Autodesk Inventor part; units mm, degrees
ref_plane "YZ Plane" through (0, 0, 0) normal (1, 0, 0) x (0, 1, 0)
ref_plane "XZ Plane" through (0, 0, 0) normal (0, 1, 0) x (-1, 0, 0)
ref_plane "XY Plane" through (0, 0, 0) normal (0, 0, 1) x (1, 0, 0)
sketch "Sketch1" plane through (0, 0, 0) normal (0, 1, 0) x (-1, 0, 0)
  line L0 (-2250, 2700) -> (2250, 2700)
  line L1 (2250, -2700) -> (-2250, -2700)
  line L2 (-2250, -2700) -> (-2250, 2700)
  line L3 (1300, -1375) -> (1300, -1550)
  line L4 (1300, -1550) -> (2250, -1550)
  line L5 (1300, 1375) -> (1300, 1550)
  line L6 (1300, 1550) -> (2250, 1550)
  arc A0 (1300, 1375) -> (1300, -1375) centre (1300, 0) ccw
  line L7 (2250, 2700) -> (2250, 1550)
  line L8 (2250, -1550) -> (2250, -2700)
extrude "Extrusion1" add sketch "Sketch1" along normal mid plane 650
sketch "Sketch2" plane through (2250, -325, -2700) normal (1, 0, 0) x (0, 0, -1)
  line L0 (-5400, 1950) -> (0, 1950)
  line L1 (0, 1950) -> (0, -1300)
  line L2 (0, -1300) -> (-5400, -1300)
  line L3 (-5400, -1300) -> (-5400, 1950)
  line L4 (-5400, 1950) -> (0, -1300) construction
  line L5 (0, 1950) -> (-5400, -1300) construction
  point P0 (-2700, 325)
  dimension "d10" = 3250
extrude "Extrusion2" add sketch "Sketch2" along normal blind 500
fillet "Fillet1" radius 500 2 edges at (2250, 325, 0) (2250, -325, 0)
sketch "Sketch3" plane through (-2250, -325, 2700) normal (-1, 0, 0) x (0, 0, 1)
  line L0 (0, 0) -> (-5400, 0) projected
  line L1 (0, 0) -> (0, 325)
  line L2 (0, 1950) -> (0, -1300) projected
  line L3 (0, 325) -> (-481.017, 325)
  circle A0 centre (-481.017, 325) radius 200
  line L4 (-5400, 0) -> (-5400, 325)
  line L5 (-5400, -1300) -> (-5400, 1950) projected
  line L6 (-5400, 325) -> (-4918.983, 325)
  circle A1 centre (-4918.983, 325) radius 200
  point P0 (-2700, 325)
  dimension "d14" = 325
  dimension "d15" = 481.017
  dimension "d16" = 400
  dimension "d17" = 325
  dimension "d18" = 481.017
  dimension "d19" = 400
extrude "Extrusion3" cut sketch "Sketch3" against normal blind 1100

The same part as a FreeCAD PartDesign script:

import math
import FreeCAD as App
import Part
import Sketcher
from FreeCAD import Vector
Q = App.Units.Quantity


def edges_at(feature, points):
    """Names of the edges that pass closest to the given points."""
    edges = feature.Shape.Edges
    near = lambda p: min(range(len(edges)), key=lambda i: edges[i].distToShape(Part.Vertex(*p))[0])
    return sorted({f"Edge{near(p) + 1}" for p in points})

doc = App.newDocument("Part")
body = doc.addObject("PartDesign::Body", "Body")

# Sketch on XZ plane
sketch1 = body.newObject("Sketcher::SketchObject", "Sketch")
sketch1.AttachmentSupport = (doc.getObject("XZ_Plane"), [""])
sketch1.MapMode = "FlatFace"
sketch1.addGeometry([
    Part.LineSegment(Vector(-2250, 2700, 0), Vector(2250, 2700, 0)),  # 0
    Part.LineSegment(Vector(2250, 2700, 0), Vector(2250, -2700, 0)),  # 1
    Part.LineSegment(Vector(2250, -2700, 0), Vector(-2250, -2700, 0)),  # 2
    Part.LineSegment(Vector(-2250, -2700, 0), Vector(-2250, -1550, 0)),  # 3
    Part.LineSegment(Vector(-2250, -1550, 0), Vector(-1300, -1550, 0)),  # 4
    Part.LineSegment(Vector(-1300, -1550, 0), Vector(-1300, -1375, 0)),  # 5
    Part.ArcOfCircle(Part.Circle(Vector(-1300, 0, 0), Vector(0, 0, 1), 1375), math.radians(-90), math.radians(90)),  # 6
    Part.LineSegment(Vector(-1300, 1375, 0), Vector(-1300, 1550, 0)),  # 7
    Part.LineSegment(Vector(-1300, 1550, 0), Vector(-2250, 1550, 0)),  # 8
    Part.LineSegment(Vector(-2250, 1550, 0), Vector(-2250, 2700, 0)),  # 9
], False)
sketch1.addConstraint([
    Sketcher.Constraint("Coincident", 0, 2, 1, 1),
    Sketcher.Constraint("Coincident", 1, 2, 2, 1),
    Sketcher.Constraint("Coincident", 2, 2, 3, 1),
    Sketcher.Constraint("Coincident", 3, 2, 4, 1),
    Sketcher.Constraint("Coincident", 4, 2, 5, 1),
    Sketcher.Constraint("Coincident", 5, 2, 6, 1),
    Sketcher.Constraint("Coincident", 6, 2, 7, 1),
    Sketcher.Constraint("Coincident", 7, 2, 8, 1),
    Sketcher.Constraint("Coincident", 8, 2, 9, 1),
    Sketcher.Constraint("Coincident", 9, 2, 0, 1),
    Sketcher.Constraint("Horizontal", 0),
    Sketcher.Constraint("Vertical", 1),
    Sketcher.Constraint("Horizontal", 2),
    Sketcher.Constraint("Vertical", 3),
    Sketcher.Constraint("Horizontal", 4),
    Sketcher.Constraint("Vertical", 5),
    Sketcher.Constraint("Vertical", 7),
    Sketcher.Constraint("Horizontal", 8),
    Sketcher.Constraint("Vertical", 9),
    Sketcher.Constraint("Symmetric", 0, 2, 2, 2, -1, 1),
    Sketcher.Constraint("Symmetric", 4, 2, 7, 2, -1),
    Sketcher.Constraint("PointOnObject", 6, 3, -1),
    Sketcher.Constraint("Vertical", 6, 3, 4, 2),
    Sketcher.Constraint("Vertical", 3, 2, 8, 2),
    Sketcher.Constraint("Radius", 6, Q("1375 mm")),
    Sketcher.Constraint("DistanceX", 0, 1, 0, 2, Q("4500 mm")),
    Sketcher.Constraint("DistanceX", 4, 1, 4, 2, Q("950 mm")),
    Sketcher.Constraint("DistanceY", 1, 2, 1, 1, Q("5400 mm")),
    Sketcher.Constraint("DistanceY", 3, 1, 3, 2, Q("1150 mm")),
])
pad1 = body.newObject("PartDesign::Pad", "Pad")
pad1.Profile = sketch1
pad1.Length = 650
pad1.Midplane = True

# Sketch on YZ plane
sketch2 = body.newObject("Sketcher::SketchObject", "Sketch001")
sketch2.AttachmentSupport = (doc.getObject("YZ_Plane"), [""])
sketch2.MapMode = "FlatFace"
sketch2.AttachmentOffset = App.Placement(Vector(0, 0, 2250), App.Rotation())
sketch2.addGeometry([
    Part.LineSegment(Vector(1625, -2700, 0), Vector(1625, 2700, 0)),
    Part.LineSegment(Vector(1625, 2700, 0), Vector(-1625, 2700, 0)),
    Part.LineSegment(Vector(-1625, 2700, 0), Vector(-1625, -2700, 0)),
    Part.LineSegment(Vector(-1625, -2700, 0), Vector(1625, -2700, 0)),
], False)
sketch2.addConstraint([
    Sketcher.Constraint("Coincident", 0, 2, 1, 1),
    Sketcher.Constraint("Coincident", 1, 2, 2, 1),
    Sketcher.Constraint("Coincident", 2, 2, 3, 1),
    Sketcher.Constraint("Coincident", 3, 2, 0, 1),
    Sketcher.Constraint("Vertical", 0),
    Sketcher.Constraint("Horizontal", 1),
    Sketcher.Constraint("Vertical", 2),
    Sketcher.Constraint("Horizontal", 3),
    Sketcher.Constraint("Symmetric", 0, 2, 2, 2, -1, 1),
    Sketcher.Constraint("DistanceX", 1, 2, 1, 1, Q("3250 mm")),
    Sketcher.Constraint("DistanceY", 0, 1, 0, 2, Q("5400 mm")),
])
pad2 = body.newObject("PartDesign::Pad", "Pad001")
pad2.Profile = sketch2
pad2.Length = 500
doc.recompute()

fillet = body.newObject("PartDesign::Fillet", "Fillet")
fillet.Base = (pad2, edges_at(pad2, [(2250, 325, 0), (2250, -325, 0)]))
fillet.Radius = 500

# Sketch on YZ plane
sketch3 = body.newObject("Sketcher::SketchObject", "Sketch002")
sketch3.AttachmentSupport = (doc.getObject("YZ_Plane"), [""])
sketch3.MapMode = "FlatFace"
sketch3.AttachmentOffset = App.Placement(Vector(0, 0, -2250), App.Rotation())
sketch3.addGeometry([
    Part.Circle(Vector(0, -2219, 0), Vector(0, 0, 1), 200),
    Part.Circle(Vector(0, 2219, 0), Vector(0, 0, 1), 200),
], False)
sketch3.addConstraint([
    Sketcher.Constraint("Equal", 0, 1),
    Sketcher.Constraint("Symmetric", 0, 3, 1, 3, -1, 1),
    Sketcher.Constraint("PointOnObject", 0, 3, -2),
    Sketcher.Constraint("Diameter", 0, Q("400 mm")),
    Sketcher.Constraint("DistanceY", 0, 3, -1, 1, Q("2218.983 mm")),
])
pocket1 = body.newObject("PartDesign::Pocket", "Pocket")
pocket1.Profile = sketch3
pocket1.Length = 1100
pocket1.Reversed = True

doc.recompute()
